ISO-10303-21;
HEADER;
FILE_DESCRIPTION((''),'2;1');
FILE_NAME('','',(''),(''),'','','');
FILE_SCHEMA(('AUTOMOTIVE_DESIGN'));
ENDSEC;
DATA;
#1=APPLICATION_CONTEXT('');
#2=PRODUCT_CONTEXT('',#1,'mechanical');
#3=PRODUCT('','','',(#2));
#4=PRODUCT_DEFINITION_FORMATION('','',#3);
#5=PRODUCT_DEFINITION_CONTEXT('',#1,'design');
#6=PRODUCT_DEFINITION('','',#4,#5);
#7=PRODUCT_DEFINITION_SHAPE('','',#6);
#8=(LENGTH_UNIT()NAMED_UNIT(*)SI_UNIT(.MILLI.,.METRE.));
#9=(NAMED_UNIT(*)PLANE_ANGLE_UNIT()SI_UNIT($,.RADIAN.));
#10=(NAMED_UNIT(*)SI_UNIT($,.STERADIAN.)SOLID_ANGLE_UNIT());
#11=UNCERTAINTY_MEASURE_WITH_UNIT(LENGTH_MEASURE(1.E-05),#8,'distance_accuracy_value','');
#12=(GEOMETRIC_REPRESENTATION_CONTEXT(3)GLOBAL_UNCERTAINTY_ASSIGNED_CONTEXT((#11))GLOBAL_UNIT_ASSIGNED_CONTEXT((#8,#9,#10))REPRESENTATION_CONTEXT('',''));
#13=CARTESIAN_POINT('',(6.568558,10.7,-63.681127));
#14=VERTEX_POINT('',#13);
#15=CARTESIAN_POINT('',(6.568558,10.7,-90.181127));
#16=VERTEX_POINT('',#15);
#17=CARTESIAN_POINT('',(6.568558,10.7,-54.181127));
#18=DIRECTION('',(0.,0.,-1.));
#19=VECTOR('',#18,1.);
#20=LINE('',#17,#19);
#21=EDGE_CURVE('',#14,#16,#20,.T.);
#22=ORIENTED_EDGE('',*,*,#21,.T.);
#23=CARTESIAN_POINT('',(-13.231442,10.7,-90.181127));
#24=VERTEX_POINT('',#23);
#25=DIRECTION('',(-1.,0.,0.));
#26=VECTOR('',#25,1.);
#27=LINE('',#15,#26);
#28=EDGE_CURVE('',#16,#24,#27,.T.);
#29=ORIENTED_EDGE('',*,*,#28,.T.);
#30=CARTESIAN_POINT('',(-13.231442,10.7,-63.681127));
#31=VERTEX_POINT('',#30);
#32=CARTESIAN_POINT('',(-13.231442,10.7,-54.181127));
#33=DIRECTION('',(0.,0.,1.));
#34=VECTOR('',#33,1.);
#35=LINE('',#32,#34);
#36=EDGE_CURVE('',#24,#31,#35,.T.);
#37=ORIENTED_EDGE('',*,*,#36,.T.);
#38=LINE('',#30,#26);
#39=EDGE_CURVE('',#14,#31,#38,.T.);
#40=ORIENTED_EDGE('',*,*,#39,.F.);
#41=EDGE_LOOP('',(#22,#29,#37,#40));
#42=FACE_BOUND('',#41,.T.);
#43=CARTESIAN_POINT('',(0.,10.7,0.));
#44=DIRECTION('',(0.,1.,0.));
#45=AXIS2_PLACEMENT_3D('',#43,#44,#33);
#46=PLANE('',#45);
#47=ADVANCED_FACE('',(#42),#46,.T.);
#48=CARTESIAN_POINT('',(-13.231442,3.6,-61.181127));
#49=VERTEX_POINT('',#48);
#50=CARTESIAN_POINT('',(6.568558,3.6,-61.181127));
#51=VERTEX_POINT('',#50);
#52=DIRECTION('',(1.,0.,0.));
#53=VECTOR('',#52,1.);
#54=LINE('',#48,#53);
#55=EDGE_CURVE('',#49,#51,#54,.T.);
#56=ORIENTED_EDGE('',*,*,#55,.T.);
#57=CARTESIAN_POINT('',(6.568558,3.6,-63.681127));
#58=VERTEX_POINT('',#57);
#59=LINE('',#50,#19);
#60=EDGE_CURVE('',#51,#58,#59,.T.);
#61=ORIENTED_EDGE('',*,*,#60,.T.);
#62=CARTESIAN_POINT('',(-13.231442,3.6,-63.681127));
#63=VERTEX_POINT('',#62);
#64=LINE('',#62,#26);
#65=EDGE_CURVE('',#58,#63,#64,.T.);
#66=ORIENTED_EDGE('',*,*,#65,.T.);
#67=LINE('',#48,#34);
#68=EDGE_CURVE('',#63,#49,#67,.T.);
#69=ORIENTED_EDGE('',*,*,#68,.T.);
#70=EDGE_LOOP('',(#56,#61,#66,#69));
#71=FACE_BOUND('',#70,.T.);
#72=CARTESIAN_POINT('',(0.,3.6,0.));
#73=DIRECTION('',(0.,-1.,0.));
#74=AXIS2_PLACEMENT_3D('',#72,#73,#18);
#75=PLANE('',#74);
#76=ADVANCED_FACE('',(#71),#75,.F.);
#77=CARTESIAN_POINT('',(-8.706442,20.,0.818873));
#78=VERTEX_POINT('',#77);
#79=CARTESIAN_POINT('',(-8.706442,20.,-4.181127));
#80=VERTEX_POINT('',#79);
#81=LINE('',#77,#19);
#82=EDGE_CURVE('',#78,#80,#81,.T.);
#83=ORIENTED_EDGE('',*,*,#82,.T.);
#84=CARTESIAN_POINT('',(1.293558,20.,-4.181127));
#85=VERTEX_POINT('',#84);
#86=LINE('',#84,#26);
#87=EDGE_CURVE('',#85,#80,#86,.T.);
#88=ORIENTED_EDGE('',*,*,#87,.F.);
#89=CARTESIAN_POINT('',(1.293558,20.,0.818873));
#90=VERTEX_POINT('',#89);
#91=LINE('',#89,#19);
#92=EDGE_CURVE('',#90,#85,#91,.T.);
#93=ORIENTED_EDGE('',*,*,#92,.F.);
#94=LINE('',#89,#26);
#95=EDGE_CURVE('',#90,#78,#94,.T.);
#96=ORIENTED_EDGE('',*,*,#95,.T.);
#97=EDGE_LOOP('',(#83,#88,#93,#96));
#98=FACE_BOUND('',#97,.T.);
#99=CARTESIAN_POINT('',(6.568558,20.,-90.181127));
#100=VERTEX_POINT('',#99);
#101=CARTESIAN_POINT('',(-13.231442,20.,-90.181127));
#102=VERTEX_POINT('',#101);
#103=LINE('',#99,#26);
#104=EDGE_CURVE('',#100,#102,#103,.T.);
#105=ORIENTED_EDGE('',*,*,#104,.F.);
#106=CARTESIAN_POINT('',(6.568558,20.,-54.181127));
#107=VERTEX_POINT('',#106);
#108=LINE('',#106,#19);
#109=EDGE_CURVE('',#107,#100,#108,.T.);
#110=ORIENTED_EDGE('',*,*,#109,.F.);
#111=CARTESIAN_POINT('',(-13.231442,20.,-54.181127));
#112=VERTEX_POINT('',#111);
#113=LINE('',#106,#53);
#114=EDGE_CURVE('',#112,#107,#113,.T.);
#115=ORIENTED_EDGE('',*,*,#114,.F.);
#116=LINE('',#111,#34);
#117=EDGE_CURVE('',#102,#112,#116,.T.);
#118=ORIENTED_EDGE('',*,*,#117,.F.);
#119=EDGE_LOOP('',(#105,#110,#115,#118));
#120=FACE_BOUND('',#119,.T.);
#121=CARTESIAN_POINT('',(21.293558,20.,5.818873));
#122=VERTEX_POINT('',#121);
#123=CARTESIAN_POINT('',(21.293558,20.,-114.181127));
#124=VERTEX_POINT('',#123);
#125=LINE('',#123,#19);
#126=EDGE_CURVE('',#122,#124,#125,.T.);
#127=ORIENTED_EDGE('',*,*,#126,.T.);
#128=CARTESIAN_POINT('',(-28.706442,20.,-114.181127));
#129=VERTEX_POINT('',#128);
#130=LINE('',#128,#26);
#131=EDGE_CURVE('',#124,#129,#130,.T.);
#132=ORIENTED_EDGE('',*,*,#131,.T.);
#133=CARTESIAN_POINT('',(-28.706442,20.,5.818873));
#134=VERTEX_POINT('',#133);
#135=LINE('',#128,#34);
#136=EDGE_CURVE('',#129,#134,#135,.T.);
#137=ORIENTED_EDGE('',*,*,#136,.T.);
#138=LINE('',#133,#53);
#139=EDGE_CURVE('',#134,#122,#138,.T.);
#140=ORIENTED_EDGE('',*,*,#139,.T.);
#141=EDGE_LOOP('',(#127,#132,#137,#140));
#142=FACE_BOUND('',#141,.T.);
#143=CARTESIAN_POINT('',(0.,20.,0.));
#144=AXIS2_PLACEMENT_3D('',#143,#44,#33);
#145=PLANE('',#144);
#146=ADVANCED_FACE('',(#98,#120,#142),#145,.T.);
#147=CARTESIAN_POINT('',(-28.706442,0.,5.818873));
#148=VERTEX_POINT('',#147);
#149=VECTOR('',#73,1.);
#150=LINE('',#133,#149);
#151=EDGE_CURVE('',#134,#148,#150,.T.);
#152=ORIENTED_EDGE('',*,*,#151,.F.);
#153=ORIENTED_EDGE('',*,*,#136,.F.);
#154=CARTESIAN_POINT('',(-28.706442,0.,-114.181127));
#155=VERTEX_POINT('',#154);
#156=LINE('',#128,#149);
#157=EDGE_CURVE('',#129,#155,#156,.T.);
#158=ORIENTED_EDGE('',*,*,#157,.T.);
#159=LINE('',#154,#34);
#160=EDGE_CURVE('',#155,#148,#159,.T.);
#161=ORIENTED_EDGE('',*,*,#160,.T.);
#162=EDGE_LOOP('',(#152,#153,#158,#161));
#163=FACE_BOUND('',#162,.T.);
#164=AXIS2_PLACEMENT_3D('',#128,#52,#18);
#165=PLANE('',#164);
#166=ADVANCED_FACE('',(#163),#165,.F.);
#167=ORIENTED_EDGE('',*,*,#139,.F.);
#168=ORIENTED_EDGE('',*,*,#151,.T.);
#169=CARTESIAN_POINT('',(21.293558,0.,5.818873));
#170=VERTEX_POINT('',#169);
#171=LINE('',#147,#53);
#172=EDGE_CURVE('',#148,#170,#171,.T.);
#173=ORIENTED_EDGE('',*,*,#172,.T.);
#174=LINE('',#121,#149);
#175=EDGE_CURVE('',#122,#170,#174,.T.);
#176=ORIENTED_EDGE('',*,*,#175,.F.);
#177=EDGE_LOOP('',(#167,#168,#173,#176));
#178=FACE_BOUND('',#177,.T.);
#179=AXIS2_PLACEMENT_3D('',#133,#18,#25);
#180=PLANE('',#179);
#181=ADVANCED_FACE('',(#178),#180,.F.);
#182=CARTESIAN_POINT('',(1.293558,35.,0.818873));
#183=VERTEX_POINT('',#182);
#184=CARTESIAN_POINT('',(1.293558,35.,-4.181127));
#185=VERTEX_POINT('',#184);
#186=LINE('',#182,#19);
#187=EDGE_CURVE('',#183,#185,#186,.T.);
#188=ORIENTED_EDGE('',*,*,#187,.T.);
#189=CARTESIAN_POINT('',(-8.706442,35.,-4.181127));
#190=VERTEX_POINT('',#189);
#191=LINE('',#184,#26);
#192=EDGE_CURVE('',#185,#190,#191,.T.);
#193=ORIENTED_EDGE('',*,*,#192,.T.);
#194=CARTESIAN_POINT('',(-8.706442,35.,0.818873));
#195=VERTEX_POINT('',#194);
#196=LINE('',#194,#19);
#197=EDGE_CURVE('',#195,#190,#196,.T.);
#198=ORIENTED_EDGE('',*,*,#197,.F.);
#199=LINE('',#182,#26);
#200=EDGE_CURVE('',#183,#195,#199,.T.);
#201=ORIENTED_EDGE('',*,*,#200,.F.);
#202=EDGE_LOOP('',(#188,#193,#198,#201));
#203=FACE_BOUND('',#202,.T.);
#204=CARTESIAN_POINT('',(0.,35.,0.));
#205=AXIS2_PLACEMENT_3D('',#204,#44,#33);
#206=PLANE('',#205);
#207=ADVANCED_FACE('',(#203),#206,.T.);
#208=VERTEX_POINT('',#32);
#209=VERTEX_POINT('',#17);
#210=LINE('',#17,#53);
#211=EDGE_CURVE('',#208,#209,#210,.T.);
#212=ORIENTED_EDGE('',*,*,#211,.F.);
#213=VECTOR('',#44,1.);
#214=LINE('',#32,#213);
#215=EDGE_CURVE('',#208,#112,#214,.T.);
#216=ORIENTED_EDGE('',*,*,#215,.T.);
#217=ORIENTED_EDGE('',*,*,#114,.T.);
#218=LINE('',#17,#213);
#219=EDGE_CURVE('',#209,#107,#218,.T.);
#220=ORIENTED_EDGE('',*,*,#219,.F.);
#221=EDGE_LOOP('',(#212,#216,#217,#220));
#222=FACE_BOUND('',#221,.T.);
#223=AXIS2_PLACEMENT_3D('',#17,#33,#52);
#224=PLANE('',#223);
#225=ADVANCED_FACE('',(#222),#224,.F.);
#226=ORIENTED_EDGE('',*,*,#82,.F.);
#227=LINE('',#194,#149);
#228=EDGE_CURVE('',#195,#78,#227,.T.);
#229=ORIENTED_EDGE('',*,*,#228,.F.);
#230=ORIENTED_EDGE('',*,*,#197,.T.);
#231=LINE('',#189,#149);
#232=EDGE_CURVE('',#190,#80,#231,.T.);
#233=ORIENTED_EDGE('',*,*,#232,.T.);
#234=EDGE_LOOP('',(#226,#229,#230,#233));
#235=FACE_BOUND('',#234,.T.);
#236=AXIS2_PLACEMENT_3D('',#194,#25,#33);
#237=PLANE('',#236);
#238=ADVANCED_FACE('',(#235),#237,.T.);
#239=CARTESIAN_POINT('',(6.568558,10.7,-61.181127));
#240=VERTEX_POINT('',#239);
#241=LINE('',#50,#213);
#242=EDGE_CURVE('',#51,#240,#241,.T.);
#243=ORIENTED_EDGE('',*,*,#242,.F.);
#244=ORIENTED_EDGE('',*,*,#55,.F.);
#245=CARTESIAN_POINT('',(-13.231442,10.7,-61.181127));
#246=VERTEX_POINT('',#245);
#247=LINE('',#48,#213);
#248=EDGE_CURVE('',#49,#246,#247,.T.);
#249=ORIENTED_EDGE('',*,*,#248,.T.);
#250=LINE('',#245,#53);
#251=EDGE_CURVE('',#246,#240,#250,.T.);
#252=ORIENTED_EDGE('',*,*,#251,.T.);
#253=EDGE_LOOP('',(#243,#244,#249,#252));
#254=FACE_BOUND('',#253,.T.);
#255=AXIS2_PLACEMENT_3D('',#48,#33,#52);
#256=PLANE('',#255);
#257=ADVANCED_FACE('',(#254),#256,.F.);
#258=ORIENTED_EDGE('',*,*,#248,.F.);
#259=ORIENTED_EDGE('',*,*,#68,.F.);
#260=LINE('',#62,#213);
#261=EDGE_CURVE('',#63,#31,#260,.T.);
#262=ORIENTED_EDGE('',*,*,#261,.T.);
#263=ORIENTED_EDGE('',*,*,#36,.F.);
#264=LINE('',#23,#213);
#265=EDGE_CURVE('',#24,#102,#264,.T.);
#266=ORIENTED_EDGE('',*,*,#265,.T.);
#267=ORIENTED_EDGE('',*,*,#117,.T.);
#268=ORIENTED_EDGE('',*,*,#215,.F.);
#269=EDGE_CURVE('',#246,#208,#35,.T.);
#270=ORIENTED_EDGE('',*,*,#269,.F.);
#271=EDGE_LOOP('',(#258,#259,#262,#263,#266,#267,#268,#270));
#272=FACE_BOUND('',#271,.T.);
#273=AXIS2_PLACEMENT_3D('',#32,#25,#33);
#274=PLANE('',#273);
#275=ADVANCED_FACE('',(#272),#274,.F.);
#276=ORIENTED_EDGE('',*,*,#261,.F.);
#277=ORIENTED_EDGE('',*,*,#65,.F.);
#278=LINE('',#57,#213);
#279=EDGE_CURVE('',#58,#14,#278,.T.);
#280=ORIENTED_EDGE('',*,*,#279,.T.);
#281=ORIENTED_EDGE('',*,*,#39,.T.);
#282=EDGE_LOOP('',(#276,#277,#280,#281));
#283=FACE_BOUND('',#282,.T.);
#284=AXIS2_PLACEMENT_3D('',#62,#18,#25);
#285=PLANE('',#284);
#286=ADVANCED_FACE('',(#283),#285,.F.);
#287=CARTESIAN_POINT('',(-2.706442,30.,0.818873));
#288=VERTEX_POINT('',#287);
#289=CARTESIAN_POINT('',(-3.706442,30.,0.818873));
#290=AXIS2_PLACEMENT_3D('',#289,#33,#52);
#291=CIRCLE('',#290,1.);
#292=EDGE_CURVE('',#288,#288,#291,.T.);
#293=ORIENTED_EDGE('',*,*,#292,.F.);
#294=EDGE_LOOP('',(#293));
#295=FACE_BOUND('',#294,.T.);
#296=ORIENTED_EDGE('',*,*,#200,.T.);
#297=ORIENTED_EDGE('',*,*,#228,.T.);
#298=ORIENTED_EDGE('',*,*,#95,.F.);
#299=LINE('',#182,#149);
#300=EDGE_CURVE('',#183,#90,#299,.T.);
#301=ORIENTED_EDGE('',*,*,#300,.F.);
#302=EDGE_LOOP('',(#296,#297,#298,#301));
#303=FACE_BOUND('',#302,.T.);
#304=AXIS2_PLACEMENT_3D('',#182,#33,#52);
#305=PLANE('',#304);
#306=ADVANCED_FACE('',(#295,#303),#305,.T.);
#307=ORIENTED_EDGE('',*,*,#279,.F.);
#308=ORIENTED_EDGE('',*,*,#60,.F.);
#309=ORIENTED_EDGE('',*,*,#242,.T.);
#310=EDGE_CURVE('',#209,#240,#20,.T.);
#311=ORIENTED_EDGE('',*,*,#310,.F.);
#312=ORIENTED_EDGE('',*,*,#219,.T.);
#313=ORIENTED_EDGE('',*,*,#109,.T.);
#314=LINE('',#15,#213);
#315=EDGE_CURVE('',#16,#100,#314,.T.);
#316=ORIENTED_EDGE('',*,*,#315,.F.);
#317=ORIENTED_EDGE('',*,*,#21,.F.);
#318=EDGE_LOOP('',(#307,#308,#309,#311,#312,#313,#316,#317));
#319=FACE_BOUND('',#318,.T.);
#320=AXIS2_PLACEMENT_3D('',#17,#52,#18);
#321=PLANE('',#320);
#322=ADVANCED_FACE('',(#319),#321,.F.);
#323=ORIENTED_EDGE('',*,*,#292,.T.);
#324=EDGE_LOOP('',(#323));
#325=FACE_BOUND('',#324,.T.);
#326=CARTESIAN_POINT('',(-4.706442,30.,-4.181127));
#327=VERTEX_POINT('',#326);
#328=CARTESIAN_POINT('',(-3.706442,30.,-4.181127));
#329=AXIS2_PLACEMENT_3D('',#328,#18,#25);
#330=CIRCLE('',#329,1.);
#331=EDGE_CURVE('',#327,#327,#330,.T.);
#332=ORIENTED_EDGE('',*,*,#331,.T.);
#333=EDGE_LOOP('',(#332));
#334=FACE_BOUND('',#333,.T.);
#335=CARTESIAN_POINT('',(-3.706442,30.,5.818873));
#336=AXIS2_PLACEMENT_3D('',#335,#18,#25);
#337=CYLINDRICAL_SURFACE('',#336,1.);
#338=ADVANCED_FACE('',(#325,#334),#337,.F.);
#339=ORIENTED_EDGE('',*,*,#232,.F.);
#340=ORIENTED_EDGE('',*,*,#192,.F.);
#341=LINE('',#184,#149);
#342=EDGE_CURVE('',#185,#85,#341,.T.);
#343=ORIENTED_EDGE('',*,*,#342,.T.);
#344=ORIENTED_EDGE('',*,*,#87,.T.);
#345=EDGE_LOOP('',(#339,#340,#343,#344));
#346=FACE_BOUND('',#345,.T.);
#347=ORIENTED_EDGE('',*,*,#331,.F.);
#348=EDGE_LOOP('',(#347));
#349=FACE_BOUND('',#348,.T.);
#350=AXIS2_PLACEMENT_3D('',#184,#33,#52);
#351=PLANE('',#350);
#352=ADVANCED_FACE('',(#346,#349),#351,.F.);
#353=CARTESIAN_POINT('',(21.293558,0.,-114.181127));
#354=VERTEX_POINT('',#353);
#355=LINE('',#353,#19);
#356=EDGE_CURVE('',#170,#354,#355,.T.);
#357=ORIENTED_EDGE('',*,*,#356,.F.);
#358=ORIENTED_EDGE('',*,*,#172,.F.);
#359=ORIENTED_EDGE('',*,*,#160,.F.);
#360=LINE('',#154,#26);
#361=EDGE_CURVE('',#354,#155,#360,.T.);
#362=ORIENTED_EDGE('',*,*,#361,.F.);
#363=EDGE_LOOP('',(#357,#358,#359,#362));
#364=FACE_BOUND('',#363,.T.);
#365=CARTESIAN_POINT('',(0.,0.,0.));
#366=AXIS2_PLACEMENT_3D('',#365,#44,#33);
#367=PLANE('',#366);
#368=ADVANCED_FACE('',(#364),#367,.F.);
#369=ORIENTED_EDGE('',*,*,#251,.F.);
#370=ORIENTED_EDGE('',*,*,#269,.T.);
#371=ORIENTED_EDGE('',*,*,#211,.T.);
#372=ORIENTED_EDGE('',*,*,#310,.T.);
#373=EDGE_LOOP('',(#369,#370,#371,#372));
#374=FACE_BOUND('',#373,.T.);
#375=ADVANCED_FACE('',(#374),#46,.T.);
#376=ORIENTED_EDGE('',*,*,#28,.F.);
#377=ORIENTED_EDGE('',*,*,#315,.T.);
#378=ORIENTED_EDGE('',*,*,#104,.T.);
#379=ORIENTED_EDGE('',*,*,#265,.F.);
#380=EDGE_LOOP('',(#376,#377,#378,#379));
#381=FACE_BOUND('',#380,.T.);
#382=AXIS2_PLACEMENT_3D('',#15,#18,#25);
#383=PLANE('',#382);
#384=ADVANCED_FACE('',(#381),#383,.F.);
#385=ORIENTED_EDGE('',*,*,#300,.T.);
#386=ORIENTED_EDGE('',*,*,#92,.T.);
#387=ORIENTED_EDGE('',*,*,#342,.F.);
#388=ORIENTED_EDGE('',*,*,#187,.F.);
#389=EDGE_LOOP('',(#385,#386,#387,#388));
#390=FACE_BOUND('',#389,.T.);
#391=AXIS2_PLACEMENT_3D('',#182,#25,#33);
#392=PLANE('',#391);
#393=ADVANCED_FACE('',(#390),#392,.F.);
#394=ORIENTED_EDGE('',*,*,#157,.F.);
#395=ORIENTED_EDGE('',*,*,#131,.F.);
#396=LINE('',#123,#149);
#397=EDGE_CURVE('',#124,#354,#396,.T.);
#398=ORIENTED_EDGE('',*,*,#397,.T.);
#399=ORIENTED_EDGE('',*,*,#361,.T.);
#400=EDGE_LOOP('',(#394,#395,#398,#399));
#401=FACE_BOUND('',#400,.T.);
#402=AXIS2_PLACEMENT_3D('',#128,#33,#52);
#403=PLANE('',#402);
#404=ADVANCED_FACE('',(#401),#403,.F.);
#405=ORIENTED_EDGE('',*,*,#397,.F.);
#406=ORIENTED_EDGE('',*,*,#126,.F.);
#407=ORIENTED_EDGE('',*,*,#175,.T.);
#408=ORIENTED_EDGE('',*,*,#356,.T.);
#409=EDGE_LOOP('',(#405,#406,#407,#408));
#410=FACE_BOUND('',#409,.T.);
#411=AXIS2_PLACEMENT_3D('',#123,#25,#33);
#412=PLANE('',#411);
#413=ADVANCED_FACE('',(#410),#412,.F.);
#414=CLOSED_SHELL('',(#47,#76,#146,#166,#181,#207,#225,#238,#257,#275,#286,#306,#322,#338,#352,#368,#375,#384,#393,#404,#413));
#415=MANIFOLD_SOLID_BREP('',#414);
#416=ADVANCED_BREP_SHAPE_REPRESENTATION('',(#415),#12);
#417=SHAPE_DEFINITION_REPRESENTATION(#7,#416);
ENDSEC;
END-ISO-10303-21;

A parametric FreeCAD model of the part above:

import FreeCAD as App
import Part
import Sketcher
Q = App.Units.Quantity

doc = App.newDocument("Part")
params = doc.addObject("Spreadsheet::Sheet", "Params")
for row, (alias, value) in enumerate([
    ("sketch1_width", "50 mm"),
    ("sketch1_height", "120 mm"),
    ("pad1_length", "20 mm"),
    ("sketch2_width", "10 mm"),
    ("sketch2_height", "5 mm"),
    ("pad2_length", "15 mm"),
    ("sketch3_diameter", "2 mm"),
    ("pocket1_length", "10 mm"),
    ("sketch4_height", "36 mm"),
    ("sketch4_width", "19.8 mm"),
    ("pocket2_length", "9.3 mm"),
    ("sketch5_width", "19.8 mm"),
    ("sketch5_height", "2.5 mm"),
    ("pocket3_length", "7.1 mm"),
], start=1):
    params.set(f"A{row}", alias)
    params.set(f"B{row}", "=" + value)
    params.setAlias(f"B{row}", alias)

body = doc.addObject("PartDesign::Body", "Body")

# Sketch on XZ plane
sketch1 = body.newObject("Sketcher::SketchObject", "Sketch")
sketch1.AttachmentSupport = (doc.getObject("XZ_Plane"), [""])
sketch1.MapMode = "FlatFace"
sketch1.addGeometry([
    Part.LineSegment(App.Vector(-29, -114, 0), App.Vector(-29, 6, 0)),
    Part.LineSegment(App.Vector(-29, 6, 0), App.Vector(21, 6, 0)),
    Part.LineSegment(App.Vector(21, 6, 0), App.Vector(21, -114, 0)),
    Part.LineSegment(App.Vector(21, -114, 0), App.Vector(-29, -114, 0)),
], False)
sketch1.addConstraint([
    Sketcher.Constraint("Coincident", 0, 2, 1, 1),
    Sketcher.Constraint("Coincident", 1, 2, 2, 1),
    Sketcher.Constraint("Coincident", 2, 2, 3, 1),
    Sketcher.Constraint("Coincident", 3, 2, 0, 1),
    Sketcher.Constraint("Vertical", 0),
    Sketcher.Constraint("Horizontal", 1),
    Sketcher.Constraint("Vertical", 2),
    Sketcher.Constraint("Horizontal", 3),
    Sketcher.Constraint("DistanceX", 1, 1, 1, 2, Q("50 mm")),
    Sketcher.Constraint("DistanceY", 0, 1, 0, 2, Q("120 mm")),
    Sketcher.Constraint("DistanceX", 0, 2, -1, 1, Q("28.706442 mm")),
    Sketcher.Constraint("DistanceY", -1, 1, 0, 2, Q("5.818873 mm")),
])
sketch1.setExpression("Constraints[8]", "Params.sketch1_width")
sketch1.setExpression("Constraints[9]", "Params.sketch1_height")
pad1 = body.newObject("PartDesign::Pad", "Pad")
pad1.Profile = sketch1
pad1.setExpression("Length", "Params.pad1_length")
pad1.Reversed = True

# Sketch on XZ plane
sketch2 = body.newObject("Sketcher::SketchObject", "Sketch001")
sketch2.AttachmentSupport = (doc.getObject("XZ_Plane"), [""])
sketch2.MapMode = "FlatFace"
sketch2.AttachmentOffset = App.Placement(App.Vector(0, 0, -20), App.Rotation())
sketch2.addGeometry([
    Part.LineSegment(App.Vector(-9, -4, 0), App.Vector(-9, 1, 0)),
    Part.LineSegment(App.Vector(-9, 1, 0), App.Vector(1, 1, 0)),
    Part.LineSegment(App.Vector(1, 1, 0), App.Vector(1, -4, 0)),
    Part.LineSegment(App.Vector(1, -4, 0), App.Vector(-9, -4, 0)),
], False)
sketch2.addConstraint([
    Sketcher.Constraint("Coincident", 0, 2, 1, 1),
    Sketcher.Constraint("Coincident", 1, 2, 2, 1),
    Sketcher.Constraint("Coincident", 2, 2, 3, 1),
    Sketcher.Constraint("Coincident", 3, 2, 0, 1),
    Sketcher.Constraint("Vertical", 0),
    Sketcher.Constraint("Horizontal", 1),
    Sketcher.Constraint("Vertical", 2),
    Sketcher.Constraint("Horizontal", 3),
    Sketcher.Constraint("DistanceX", 1, 1, 1, 2, Q("10 mm")),
    Sketcher.Constraint("DistanceY", 0, 1, 0, 2, Q("5 mm")),
    Sketcher.Constraint("DistanceX", 0, 2, -1, 1, Q("8.706442 mm")),
    Sketcher.Constraint("DistanceY", -1, 1, 0, 2, Q("0.818873 mm")),
])
sketch2.setExpression("Constraints[8]", "Params.sketch2_width")
sketch2.setExpression("Constraints[9]", "Params.sketch2_height")
pad2 = body.newObject("PartDesign::Pad", "Pad001")
pad2.Profile = sketch2
pad2.setExpression("Length", "Params.pad2_length")
pad2.Reversed = True

# Sketch on XY plane
sketch3 = body.newObject("Sketcher::SketchObject", "Sketch002")
sketch3.AttachmentSupport = (doc.getObject("XY_Plane"), [""])
sketch3.MapMode = "FlatFace"
sketch3.AttachmentOffset = App.Placement(App.Vector(0, 0, -4.181127), App.Rotation())
sketch3.addGeometry(Part.Circle(App.Vector(-3.7, 30, 0), App.Vector(0, 0, 1), 1), False)
sketch3.addConstraint([
    Sketcher.Constraint("Diameter", 0, Q("2 mm")),
    Sketcher.Constraint("DistanceY", -1, 1, 0, 3, Q("30 mm")),
    Sketcher.Constraint("DistanceX", 0, 3, -1, 1, Q("3.706442 mm")),
])
sketch3.setExpression("Constraints[0]", "Params.sketch3_diameter")
pocket1 = body.newObject("PartDesign::Pocket", "Pocket")
pocket1.Profile = sketch3
pocket1.setExpression("Length", "Params.pocket1_length")
pocket1.Reversed = True

# Sketch on XZ plane
sketch4 = body.newObject("Sketcher::SketchObject", "Sketch003")
sketch4.AttachmentSupport = (doc.getObject("XZ_Plane"), [""])
sketch4.MapMode = "FlatFace"
sketch4.AttachmentOffset = App.Placement(App.Vector(0, 0, -20), App.Rotation())
sketch4.addGeometry([
    Part.LineSegment(App.Vector(-13, -90, 0), App.Vector(-13, -54, 0)),
    Part.LineSegment(App.Vector(-13, -54, 0), App.Vector(7, -54, 0)),
    Part.LineSegment(App.Vector(7, -54, 0), App.Vector(7, -90, 0)),
    Part.LineSegment(App.Vector(7, -90, 0), App.Vector(-13, -90, 0)),
], False)
sketch4.addConstraint([
    Sketcher.Constraint("Coincident", 0, 2, 1, 1),
    Sketcher.Constraint("Coincident", 1, 2, 2, 1),
    Sketcher.Constraint("Coincident", 2, 2, 3, 1),
    Sketcher.Constraint("Coincident", 3, 2, 0, 1),
    Sketcher.Constraint("Vertical", 0),
    Sketcher.Constraint("Horizontal", 1),
    Sketcher.Constraint("Vertical", 2),
    Sketcher.Constraint("Horizontal", 3),
    Sketcher.Constraint("DistanceY", 0, 1, 0, 2, Q("36 mm")),
    Sketcher.Constraint("DistanceX", 1, 1, 1, 2, Q("19.8 mm")),
    Sketcher.Constraint("DistanceX", 0, 2, -1, 1, Q("13.231442 mm")),
    Sketcher.Constraint("DistanceY", 0, 2, -1, 1, Q("54.181127 mm")),
])
sketch4.setExpression("Constraints[8]", "Params.sketch4_height")
sketch4.setExpression("Constraints[9]", "Params.sketch4_width")
pocket2 = body.newObject("PartDesign::Pocket", "Pocket001")
pocket2.Profile = sketch4
pocket2.setExpression("Length", "Params.pocket2_length")
pocket2.Reversed = True

# Sketch on XZ plane
sketch5 = body.newObject("Sketcher::SketchObject", "Sketch004")
sketch5.AttachmentSupport = (doc.getObject("XZ_Plane"), [""])
sketch5.MapMode = "FlatFace"
sketch5.AttachmentOffset = App.Placement(App.Vector(0, 0, -10.7), App.Rotation())
sketch5.addGeometry([
    Part.LineSegment(App.Vector(-13.2, -63.7, 0), App.Vector(-13.2, -61.2, 0)),
    Part.LineSegment(App.Vector(-13.2, -61.2, 0), App.Vector(6.6, -61.2, 0)),
    Part.LineSegment(App.Vector(6.6, -61.2, 0), App.Vector(6.6, -63.7, 0)),
    Part.LineSegment(App.Vector(6.6, -63.7, 0), App.Vector(-13.2, -63.7, 0)),
], False)
sketch5.addConstraint([
    Sketcher.Constraint("Coincident", 0, 2, 1, 1),
    Sketcher.Constraint("Coincident", 1, 2, 2, 1),
    Sketcher.Constraint("Coincident", 2, 2, 3, 1),
    Sketcher.Constraint("Coincident", 3, 2, 0, 1),
    Sketcher.Constraint("Vertical", 0),
    Sketcher.Constraint("Horizontal", 1),
    Sketcher.Constraint("Vertical", 2),
    Sketcher.Constraint("Horizontal", 3),
    Sketcher.Constraint("DistanceX", 1, 1, 1, 2, Q("19.8 mm")),
    Sketcher.Constraint("DistanceY", 0, 1, 0, 2, Q("2.5 mm")),
    Sketcher.Constraint("DistanceX", 0, 2, -1, 1, Q("13.231442 mm")),
    Sketcher.Constraint("DistanceY", 0, 2, -1, 1, Q("61.181127 mm")),
])
sketch5.setExpression("Constraints[8]", "Params.sketch5_width")
sketch5.setExpression("Constraints[9]", "Params.sketch5_height")
pocket3 = body.newObject("PartDesign::Pocket", "Pocket002")
pocket3.Profile = sketch5
pocket3.setExpression("Length", "Params.pocket3_length")
pocket3.Reversed = True

doc.recompute()
